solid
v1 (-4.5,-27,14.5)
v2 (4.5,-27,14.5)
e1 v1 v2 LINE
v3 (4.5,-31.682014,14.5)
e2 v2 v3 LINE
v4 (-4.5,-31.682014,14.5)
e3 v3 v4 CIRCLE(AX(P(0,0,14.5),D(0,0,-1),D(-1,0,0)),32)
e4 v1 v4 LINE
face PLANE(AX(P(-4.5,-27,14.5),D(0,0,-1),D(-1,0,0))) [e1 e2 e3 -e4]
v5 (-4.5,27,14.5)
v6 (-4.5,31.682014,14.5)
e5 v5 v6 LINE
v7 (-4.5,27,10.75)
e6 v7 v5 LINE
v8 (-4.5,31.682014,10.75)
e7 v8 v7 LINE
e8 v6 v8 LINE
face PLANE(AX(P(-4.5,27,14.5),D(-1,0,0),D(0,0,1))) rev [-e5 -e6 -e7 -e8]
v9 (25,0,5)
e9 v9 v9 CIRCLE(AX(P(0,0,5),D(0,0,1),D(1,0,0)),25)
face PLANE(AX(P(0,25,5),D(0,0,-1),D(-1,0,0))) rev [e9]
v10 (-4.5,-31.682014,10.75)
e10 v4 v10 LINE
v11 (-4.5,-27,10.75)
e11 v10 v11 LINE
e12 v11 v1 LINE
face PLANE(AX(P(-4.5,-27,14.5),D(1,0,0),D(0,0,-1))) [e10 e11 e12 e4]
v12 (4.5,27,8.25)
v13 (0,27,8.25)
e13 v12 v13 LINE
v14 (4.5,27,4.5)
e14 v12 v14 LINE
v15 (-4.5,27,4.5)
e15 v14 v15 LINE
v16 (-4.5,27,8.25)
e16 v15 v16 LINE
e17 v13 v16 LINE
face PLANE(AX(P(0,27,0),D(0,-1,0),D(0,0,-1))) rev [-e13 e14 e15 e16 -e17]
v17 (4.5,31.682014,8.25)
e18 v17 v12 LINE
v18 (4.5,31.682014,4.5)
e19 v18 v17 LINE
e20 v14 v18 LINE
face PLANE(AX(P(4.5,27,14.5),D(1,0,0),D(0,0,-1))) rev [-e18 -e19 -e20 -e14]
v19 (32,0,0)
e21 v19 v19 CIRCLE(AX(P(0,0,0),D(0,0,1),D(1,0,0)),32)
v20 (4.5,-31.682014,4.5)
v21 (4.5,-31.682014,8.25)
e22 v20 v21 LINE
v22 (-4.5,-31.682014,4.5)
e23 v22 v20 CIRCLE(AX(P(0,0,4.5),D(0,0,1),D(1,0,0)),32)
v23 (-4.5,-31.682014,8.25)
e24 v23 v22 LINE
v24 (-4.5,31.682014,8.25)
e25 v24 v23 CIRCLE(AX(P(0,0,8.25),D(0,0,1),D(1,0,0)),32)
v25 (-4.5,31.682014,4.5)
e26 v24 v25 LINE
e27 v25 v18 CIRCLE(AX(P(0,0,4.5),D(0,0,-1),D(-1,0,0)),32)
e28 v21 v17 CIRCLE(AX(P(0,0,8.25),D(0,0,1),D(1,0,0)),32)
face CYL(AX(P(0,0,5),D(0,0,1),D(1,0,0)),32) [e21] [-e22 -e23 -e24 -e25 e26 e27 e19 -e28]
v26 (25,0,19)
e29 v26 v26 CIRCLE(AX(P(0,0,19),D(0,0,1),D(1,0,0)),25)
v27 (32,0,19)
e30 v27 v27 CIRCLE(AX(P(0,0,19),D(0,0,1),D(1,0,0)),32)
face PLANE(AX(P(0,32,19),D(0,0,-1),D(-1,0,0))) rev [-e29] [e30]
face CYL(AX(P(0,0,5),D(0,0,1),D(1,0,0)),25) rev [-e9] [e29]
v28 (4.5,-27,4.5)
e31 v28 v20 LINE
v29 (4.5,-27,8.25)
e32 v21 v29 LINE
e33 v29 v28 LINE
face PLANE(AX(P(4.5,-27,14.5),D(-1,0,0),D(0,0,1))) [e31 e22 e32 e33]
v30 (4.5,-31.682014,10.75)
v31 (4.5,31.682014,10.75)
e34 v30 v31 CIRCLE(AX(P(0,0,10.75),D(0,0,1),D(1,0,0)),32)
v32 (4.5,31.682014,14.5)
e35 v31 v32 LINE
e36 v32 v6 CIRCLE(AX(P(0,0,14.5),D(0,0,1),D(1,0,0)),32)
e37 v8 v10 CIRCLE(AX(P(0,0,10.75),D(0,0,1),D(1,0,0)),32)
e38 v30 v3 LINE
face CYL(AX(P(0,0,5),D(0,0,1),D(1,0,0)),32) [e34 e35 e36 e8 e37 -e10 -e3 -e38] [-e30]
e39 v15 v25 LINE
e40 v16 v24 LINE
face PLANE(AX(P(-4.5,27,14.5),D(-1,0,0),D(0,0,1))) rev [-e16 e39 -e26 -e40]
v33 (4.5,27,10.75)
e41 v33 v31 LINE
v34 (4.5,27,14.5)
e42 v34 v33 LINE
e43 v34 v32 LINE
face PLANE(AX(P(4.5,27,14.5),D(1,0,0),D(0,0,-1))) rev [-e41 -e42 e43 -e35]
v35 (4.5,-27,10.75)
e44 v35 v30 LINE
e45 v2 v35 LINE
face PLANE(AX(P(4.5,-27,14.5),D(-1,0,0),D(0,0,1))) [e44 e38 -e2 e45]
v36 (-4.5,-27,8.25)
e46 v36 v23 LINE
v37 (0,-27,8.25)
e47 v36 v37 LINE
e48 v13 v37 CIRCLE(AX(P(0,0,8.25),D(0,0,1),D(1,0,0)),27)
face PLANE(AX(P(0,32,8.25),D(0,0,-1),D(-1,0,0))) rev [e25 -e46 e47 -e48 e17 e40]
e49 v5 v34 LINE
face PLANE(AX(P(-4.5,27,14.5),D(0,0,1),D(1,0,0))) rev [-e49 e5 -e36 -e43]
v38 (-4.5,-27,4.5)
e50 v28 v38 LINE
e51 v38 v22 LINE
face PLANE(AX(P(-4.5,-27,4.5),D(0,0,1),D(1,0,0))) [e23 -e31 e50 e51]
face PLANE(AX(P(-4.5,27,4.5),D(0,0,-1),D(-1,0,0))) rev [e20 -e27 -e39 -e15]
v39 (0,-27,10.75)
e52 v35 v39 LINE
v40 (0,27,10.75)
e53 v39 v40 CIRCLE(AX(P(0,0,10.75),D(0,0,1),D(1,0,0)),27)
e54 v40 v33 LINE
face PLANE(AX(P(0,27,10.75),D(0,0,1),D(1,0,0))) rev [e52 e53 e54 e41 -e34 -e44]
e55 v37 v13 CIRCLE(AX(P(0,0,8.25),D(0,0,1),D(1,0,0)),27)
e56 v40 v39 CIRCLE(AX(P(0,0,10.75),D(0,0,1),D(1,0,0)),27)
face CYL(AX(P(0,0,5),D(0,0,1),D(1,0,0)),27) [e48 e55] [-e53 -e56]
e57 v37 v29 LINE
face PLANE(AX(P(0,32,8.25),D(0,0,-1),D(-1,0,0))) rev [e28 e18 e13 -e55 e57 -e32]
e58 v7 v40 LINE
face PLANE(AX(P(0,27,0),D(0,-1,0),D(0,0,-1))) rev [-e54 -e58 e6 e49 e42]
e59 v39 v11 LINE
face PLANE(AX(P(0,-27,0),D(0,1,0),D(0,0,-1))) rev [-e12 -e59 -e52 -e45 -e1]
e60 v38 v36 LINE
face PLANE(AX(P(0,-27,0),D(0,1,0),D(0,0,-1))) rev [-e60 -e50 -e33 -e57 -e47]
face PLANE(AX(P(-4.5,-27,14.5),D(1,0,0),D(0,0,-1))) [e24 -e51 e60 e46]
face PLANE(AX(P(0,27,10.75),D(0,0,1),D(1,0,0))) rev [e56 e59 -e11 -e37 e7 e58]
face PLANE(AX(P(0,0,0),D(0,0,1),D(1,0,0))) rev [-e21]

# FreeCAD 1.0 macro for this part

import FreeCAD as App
import Part
import Sketcher

doc = App.newDocument("Part")
body = doc.addObject("PartDesign::Body", "Body")

# Sketch on YZ plane
sketch1 = body.newObject("Sketcher::SketchObject", "Sketch")
sketch1.AttachmentSupport = (doc.getObject("YZ_Plane"), [""])
sketch1.MapMode = "FlatFace"
sketch1.addGeometry(Part.LineSegment(App.Vector(0, 0, 0), App.Vector(32, 0, 0)), False)
sketch1.addGeometry(Part.LineSegment(App.Vector(32, 0, 0), App.Vector(32, 8.2, 0)), False)
sketch1.addGeometry(Part.LineSegment(App.Vector(32, 8.2, 0), App.Vector(27, 8.2, 0)), False)
sketch1.addGeometry(Part.LineSegment(App.Vector(27, 8.2, 0), App.Vector(27, 10.8, 0)), False)
sketch1.addGeometry(Part.LineSegment(App.Vector(27, 10.8, 0), App.Vector(32, 10.8, 0)), False)
sketch1.addGeometry(Part.LineSegment(App.Vector(32, 10.8, 0), App.Vector(32, 19, 0)), False)
sketch1.addGeometry(Part.LineSegment(App.Vector(32, 19, 0), App.Vector(25, 19, 0)), False)
sketch1.addGeometry(Part.LineSegment(App.Vector(25, 19, 0), App.Vector(25, 5, 0)), False)
sketch1.addGeometry(Part.LineSegment(App.Vector(25, 5, 0), App.Vector(0, 5, 0)), False)
sketch1.addGeometry(Part.LineSegment(App.Vector(0, 5, 0), App.Vector(0, 0, 0)), False)
sketch1.addConstraint(Sketcher.Constraint("Coincident", 0, 2, 1, 1))
sketch1.addConstraint(Sketcher.Constraint("Coincident", 1, 2, 2, 1))
sketch1.addConstraint(Sketcher.Constraint("Coincident", 2, 2, 3, 1))
sketch1.addConstraint(Sketcher.Constraint("Coincident", 3, 2, 4, 1))
sketch1.addConstraint(Sketcher.Constraint("Coincident", 4, 2, 5, 1))
sketch1.addConstraint(Sketcher.Constraint("Coincident", 5, 2, 6, 1))
sketch1.addConstraint(Sketcher.Constraint("Coincident", 6, 2, 7, 1))
sketch1.addConstraint(Sketcher.Constraint("Coincident", 7, 2, 8, 1))
sketch1.addConstraint(Sketcher.Constraint("Coincident", 8, 2, 9, 1))
sketch1.addConstraint(Sketcher.Constraint("Coincident", 9, 2, 0, 1))
sketch1.addConstraint(Sketcher.Constraint("Horizontal", 0))
sketch1.addConstraint(Sketcher.Constraint("Vertical", 1))
sketch1.addConstraint(Sketcher.Constraint("Horizontal", 2))
sketch1.addConstraint(Sketcher.Constraint("Vertical", 3))
sketch1.addConstraint(Sketcher.Constraint("Horizontal", 4))
sketch1.addConstraint(Sketcher.Constraint("Vertical", 5))
sketch1.addConstraint(Sketcher.Constraint("Horizontal", 6))
sketch1.addConstraint(Sketcher.Constraint("Vertical", 7))
sketch1.addConstraint(Sketcher.Constraint("Horizontal", 8))
sketch1.addConstraint(Sketcher.Constraint("Vertical", 9))
sketch1.addConstraint(Sketcher.Constraint("Coincident", 9, 2, -1, 1))
sketch1.addConstraint(Sketcher.Constraint("Vertical", 1, 2, 4, 2))
sketch1.addConstraint(Sketcher.Constraint("Equal", 1, 5))
sketch1.addConstraint(Sketcher.Constraint("Equal", 4, 9))
sketch1.addConstraint(Sketcher.Constraint("DistanceX", 0, 1, 0, 2, 32.0))
sketch1.addConstraint(Sketcher.Constraint("DistanceX", 2, 2, 2, 1, 5.0))
sketch1.addConstraint(Sketcher.Constraint("DistanceX", 6, 2, 6, 1, 7.0))
sketch1.addConstraint(Sketcher.Constraint("DistanceY", 7, 2, 7, 1, 14.0))
sketch1.addConstraint(Sketcher.Constraint("DistanceY", 3, 1, 3, 2, 2.5))
revolution = body.newObject("PartDesign::Revolution", "Revolution")
revolution.Profile = sketch1
revolution.ReferenceAxis = (sketch1, ["V_Axis"])
revolution.Angle = 360

# Sketch on XZ plane
sketch2 = body.newObject("Sketcher::SketchObject", "Sketch001")
sketch2.AttachmentSupport = (doc.getObject("XZ_Plane"), [""])
sketch2.MapMode = "FlatFace"
sketch2.AttachmentOffset = App.Placement(App.Vector(0, 0, -32), App.Rotation())
sketch2.addGeometry(Part.LineSegment(App.Vector(-4, 4, 0), App.Vector(-4, 14, 0)), False)
sketch2.addGeometry(Part.LineSegment(App.Vector(-4, 14, 0), App.Vector(4, 14, 0)), False)
sketch2.addGeometry(Part.LineSegment(App.Vector(4, 14, 0), App.Vector(4, 4, 0)), False)
sketch2.addGeometry(Part.LineSegment(App.Vector(4, 4, 0), App.Vector(-4, 4, 0)), False)
sketch2.addConstraint(Sketcher.Constraint("Coincident", 0, 2, 1, 1))
sketch2.addConstraint(Sketcher.Constraint("Coincident", 1, 2, 2, 1))
sketch2.addConstraint(Sketcher.Constraint("Coincident", 2, 2, 3, 1))
sketch2.addConstraint(Sketcher.Constraint("Coincident", 3, 2, 0, 1))
sketch2.addConstraint(Sketcher.Constraint("Vertical", 0))
sketch2.addConstraint(Sketcher.Constraint("Horizontal", 1))
sketch2.addConstraint(Sketcher.Constraint("Vertical", 2))
sketch2.addConstraint(Sketcher.Constraint("Horizontal", 3))
sketch2.addConstraint(Sketcher.Constraint("DistanceX", 1, 1, 1, 2, 9.0))
sketch2.addConstraint(Sketcher.Constraint("DistanceY", 0, 1, 0, 2, 10.0))
sketch2.addConstraint(Sketcher.Constraint("DistanceX", 0, 2, -1, 1, 4.5))
sketch2.addConstraint(Sketcher.Constraint("DistanceY", -1, 1, 0, 2, 14.5))
pocket1 = body.newObject("PartDesign::Pocket", "Pocket")
pocket1.Profile = sketch2
pocket1.Length = 5
pocket1.Reversed = True
doc.recompute()

mirrored = body.newObject("PartDesign::Mirrored", "Mirrored")
mirrored.Originals = [pocket1]
mirrored.MirrorPlane = (doc.getObject("XZ_Plane"), [""])
body.Tip = mirrored

doc.recompute()
